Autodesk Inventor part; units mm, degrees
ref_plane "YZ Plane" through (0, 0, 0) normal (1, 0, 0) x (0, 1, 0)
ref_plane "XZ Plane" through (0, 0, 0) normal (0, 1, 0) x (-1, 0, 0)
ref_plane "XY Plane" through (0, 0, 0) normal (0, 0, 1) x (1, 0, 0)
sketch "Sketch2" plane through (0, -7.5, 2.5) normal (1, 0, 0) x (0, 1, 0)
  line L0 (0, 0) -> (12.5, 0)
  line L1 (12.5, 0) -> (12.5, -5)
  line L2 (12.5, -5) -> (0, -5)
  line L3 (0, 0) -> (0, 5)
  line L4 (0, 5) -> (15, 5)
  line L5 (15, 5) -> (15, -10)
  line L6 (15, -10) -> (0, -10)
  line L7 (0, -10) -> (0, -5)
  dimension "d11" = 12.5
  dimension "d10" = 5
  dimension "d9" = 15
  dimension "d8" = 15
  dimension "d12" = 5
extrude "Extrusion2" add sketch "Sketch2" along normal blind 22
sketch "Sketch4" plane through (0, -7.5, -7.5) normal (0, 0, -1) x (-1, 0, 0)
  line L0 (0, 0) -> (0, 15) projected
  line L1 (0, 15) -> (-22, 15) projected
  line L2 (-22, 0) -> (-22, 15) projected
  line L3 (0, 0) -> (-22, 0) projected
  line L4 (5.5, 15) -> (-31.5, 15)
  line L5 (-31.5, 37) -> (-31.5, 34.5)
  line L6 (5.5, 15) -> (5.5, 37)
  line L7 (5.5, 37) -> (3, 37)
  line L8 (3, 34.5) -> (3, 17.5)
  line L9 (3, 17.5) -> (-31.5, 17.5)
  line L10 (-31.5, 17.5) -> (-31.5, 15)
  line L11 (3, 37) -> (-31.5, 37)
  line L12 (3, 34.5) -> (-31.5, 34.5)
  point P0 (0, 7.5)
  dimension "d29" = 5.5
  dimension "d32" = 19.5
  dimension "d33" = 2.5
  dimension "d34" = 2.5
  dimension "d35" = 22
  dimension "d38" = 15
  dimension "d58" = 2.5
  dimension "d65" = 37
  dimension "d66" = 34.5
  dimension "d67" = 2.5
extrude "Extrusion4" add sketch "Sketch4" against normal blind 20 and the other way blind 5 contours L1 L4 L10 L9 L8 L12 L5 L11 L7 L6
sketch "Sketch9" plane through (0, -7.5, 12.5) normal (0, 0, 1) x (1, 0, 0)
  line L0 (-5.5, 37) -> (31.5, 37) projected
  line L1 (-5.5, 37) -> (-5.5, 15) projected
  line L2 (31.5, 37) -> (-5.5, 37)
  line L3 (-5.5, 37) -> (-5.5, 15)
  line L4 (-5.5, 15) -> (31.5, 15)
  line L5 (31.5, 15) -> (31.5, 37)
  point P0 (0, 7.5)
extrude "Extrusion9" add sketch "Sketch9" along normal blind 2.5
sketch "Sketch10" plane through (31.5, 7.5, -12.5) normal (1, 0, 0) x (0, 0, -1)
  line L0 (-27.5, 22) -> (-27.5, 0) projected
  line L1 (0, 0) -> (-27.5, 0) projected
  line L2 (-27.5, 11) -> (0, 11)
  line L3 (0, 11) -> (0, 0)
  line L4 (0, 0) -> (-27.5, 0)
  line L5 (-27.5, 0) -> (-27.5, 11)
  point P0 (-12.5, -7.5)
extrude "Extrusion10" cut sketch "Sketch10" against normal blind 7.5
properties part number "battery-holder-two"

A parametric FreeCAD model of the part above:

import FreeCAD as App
import Part
import Sketcher

V = App.Vector


def add_polygon(sketch, points):
    """Adds a closed chain of lines whose ends are joined by coincident constraints."""
    first, n = sketch.GeometryCount, len(points)
    for a, b in zip(points, points[1:] + points[:1]):
        sketch.addGeometry(Part.LineSegment(App.Vector(*a, 0), App.Vector(*b, 0)), False)
    for i in range(n):
        sketch.addConstraint(Sketcher.Constraint("Coincident", first + i, 2, first + (i + 1) % n, 1))

doc = App.newDocument("Part")
body = doc.addObject("PartDesign::Body", "Body")

# Sketch on YZ plane
sketch1 = body.newObject("Sketcher::SketchObject", "Sketch")
sketch1.AttachmentSupport = (doc.getObject("YZ_Plane"), [""])
sketch1.MapMode = "FlatFace"
add_polygon(sketch1, [(-8, 8), (-8, 2), (5, 2), (5, -2), (-8, -2), (-8, -8), (8, -8), (8, 8)])  # lines 0-7
sketch1.addConstraint([
    Sketcher.Constraint("Vertical", 0),
    Sketcher.Constraint("Horizontal", 1),
    Sketcher.Constraint("Vertical", 2),
    Sketcher.Constraint("Horizontal", 3),
    Sketcher.Constraint("Vertical", 4),
    Sketcher.Constraint("Horizontal", 5),
    Sketcher.Constraint("Vertical", 6),
    Sketcher.Constraint("Horizontal", 7),
    Sketcher.Constraint("Symmetric", 4, 2, 6, 2, -1, 1),
    Sketcher.Constraint("Symmetric", 0, 2, 3, 2, -1),
    Sketcher.Constraint("Equal", 0, 2),
    Sketcher.Constraint("Equal", 7, 6),
    Sketcher.Constraint("DistanceX", 5, 1, 5, 2, 15.0),
    Sketcher.Constraint("DistanceX", 1, 1, 1, 2, 12.5),
])
pad1 = body.newObject("PartDesign::Pad", "Pad")
pad1.Profile = sketch1
pad1.Length = 22

# Sketch on XY plane
sketch2 = body.newObject("Sketcher::SketchObject", "Sketch001")
sketch2.AttachmentSupport = (doc.getObject("XY_Plane"), [""])
sketch2.MapMode = "FlatFace"
sketch2.AttachmentOffset = App.Placement(V(0, 0, -7.5), App.Rotation())
add_polygon(sketch2, [(31.5, 7.5), (-5.5, 7.5), (-5.5, 29.5), (31.5, 29.5), (31.5, 27), (-3, 27), (-3, 10), (31.5, 10)])  # lines 0-7
sketch2.addConstraint([
    Sketcher.Constraint("Horizontal", 0),
    Sketcher.Constraint("Vertical", 1),
    Sketcher.Constraint("Horizontal", 2),
    Sketcher.Constraint("Vertical", 3),
    Sketcher.Constraint("Horizontal", 4),
    Sketcher.Constraint("Vertical", 5),
    Sketcher.Constraint("Horizontal", 6),
    Sketcher.Constraint("Vertical", 7),
    Sketcher.Constraint("Vertical", 3, 2, 6, 2),
    Sketcher.Constraint("Equal", 3, 7),
    Sketcher.Constraint("DistanceX", 0, 2, 0, 1, 37.0),
    Sketcher.Constraint("DistanceY", 1, 1, 1, 2, 22.0),
    Sketcher.Constraint("DistanceX", 4, 2, 4, 1, 34.5),
    Sketcher.Constraint("DistanceY", 3, 2, 3, 1, 2.5),
    Sketcher.Constraint("DistanceX", 0, 2, -1, 1, 5.5),
    Sketcher.Constraint("DistanceY", -1, 1, 3, 2, 27.0),
])
pad2 = body.newObject("PartDesign::Pad", "Pad001")
pad2.Profile = sketch2
pad2.Type = "TwoLengths"
pad2.Length = 20
pad2.Length2 = 5

# Sketch on XY plane
sketch3 = body.newObject("Sketcher::SketchObject", "Sketch002")
sketch3.AttachmentSupport = (doc.getObject("XY_Plane"), [""])
sketch3.MapMode = "FlatFace"
sketch3.AttachmentOffset = App.Placement(V(0, 0, 12.5), App.Rotation())
add_polygon(sketch3, [(32, 30), (-6, 30), (-6, 8), (32, 8)])  # lines 0-3
sketch3.addConstraint([
    Sketcher.Constraint("Horizontal", 0),
    Sketcher.Constraint("Vertical", 1),
    Sketcher.Constraint("Horizontal", 2),
    Sketcher.Constraint("Vertical", 3),
    Sketcher.Constraint("DistanceX", 0, 2, 0, 1, 37.0),
    Sketcher.Constraint("DistanceY", 1, 2, 1, 1, 22.0),
    Sketcher.Constraint("DistanceX", 0, 2, -1, 1, 5.5),
    Sketcher.Constraint("DistanceY", -1, 1, 0, 2, 29.5),
])
pad3 = body.newObject("PartDesign::Pad", "Pad002")
pad3.Profile = sketch3
pad3.Length = 2.5

# Sketch on YZ plane
sketch4 = body.newObject("Sketcher::SketchObject", "Sketch003")
sketch4.AttachmentSupport = (doc.getObject("YZ_Plane"), [""])
sketch4.MapMode = "FlatFace"
sketch4.AttachmentOffset = App.Placement(V(0, 0, 31.5), App.Rotation())
add_polygon(sketch4, [(18, -12), (18, 15), (8, 15), (8, -12)])  # lines 0-3
sketch4.addConstraint([
    Sketcher.Constraint("Vertical", 0),
    Sketcher.Constraint("Horizontal", 1),
    Sketcher.Constraint("Vertical", 2),
    Sketcher.Constraint("Horizontal", 3),
    Sketcher.Constraint("DistanceX", 1, 2, 1, 1, 11.0),
    Sketcher.Constraint("DistanceY", 0, 1, 0, 2, 27.5),
    Sketcher.Constraint("DistanceY", -1, 1, 0, 2, 15.0),
    Sketcher.Constraint("DistanceX", -1, 1, 0, 2, 18.5),
])
pocket1 = body.newObject("PartDesign::Pocket", "Pocket")
pocket1.Profile = sketch4
pocket1.Length = 7.5

doc.recompute()
